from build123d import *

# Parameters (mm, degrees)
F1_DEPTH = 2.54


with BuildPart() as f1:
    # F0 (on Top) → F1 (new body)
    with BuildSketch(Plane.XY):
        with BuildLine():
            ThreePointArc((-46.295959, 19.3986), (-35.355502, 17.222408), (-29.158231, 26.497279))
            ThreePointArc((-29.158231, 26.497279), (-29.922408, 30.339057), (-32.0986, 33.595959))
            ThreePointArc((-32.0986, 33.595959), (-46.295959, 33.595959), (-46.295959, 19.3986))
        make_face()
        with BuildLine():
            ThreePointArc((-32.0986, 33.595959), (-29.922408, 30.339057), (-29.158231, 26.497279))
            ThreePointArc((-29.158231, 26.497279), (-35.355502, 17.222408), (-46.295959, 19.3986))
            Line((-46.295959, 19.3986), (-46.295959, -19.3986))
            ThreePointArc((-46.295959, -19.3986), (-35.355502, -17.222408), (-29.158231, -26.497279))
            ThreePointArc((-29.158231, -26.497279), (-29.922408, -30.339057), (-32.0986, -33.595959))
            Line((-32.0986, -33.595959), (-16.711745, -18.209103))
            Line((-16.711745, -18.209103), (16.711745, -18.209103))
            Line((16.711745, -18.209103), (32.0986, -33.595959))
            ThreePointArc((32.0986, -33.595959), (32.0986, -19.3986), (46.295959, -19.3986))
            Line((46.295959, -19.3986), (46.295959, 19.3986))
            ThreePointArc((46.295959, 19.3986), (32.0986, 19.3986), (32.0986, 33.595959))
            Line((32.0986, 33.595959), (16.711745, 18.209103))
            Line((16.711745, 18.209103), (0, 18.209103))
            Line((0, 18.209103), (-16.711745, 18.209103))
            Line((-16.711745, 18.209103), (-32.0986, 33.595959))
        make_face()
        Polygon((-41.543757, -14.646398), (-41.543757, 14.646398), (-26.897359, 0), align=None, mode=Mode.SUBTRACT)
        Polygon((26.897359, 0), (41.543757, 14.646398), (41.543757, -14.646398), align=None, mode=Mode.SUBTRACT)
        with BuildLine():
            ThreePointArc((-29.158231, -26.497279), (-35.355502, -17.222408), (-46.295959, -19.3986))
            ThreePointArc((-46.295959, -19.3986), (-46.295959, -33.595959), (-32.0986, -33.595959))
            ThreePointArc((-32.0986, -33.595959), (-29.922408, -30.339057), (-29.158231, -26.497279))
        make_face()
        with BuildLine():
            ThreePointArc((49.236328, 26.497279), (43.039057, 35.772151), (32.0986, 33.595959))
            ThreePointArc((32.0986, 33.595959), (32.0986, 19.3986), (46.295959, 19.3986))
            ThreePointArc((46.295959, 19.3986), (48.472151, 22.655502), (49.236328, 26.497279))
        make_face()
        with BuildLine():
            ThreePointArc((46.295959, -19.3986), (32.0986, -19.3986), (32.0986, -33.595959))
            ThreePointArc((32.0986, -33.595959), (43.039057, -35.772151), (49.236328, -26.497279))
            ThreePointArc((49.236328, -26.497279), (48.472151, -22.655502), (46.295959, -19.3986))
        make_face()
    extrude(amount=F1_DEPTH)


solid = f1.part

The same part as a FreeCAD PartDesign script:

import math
import FreeCAD as App
import Part
import Sketcher
Q = App.Units.Quantity


def add_polygon(sketch, points):
    """Adds a closed chain of lines whose ends are joined by coincident constraints."""
    first, n = sketch.GeometryCount, len(points)
    for a, b in zip(points, points[1:] + points[:1]):
        sketch.addGeometry(Part.LineSegment(App.Vector(*a, 0), App.Vector(*b, 0)), False)
    for i in range(n):
        sketch.addConstraint(Sketcher.Constraint("Coincident", first + i, 2, first + (i + 1) % n, 1))

doc = App.newDocument("Part")
body = doc.addObject("PartDesign::Body", "Body")

sketch1 = body.newObject("Sketcher::SketchObject", "Sketch")
sketch1.AttachmentSupport = (doc.getObject("XY_Plane"), [""])
sketch1.MapMode = "FlatFace"
sketch1.addGeometry(Part.ArcOfCircle(Part.Circle(App.Vector(-39.19728, 26.49728, 0), App.Vector(0, 0, 1), 10.039049), math.radians(45), math.radians(225)), False)
sketch1.addGeometry(Part.LineSegment(App.Vector(-46.295959, 19.3986, 0), App.Vector(-46.295959, -19.3986, 0)), False)
sketch1.addGeometry(Part.ArcOfCircle(Part.Circle(App.Vector(-39.19728, -26.49728, 0), App.Vector(0, 0, 1), 10.039049), math.radians(135), math.radians(315)), False)
sketch1.addGeometry(Part.LineSegment(App.Vector(-32.0986, -33.595959, 0), App.Vector(-16.711745, -18.209103, 0)), False)
sketch1.addGeometry(Part.LineSegment(App.Vector(-16.711745, -18.209103, 0), App.Vector(16.711745, -18.209103, 0)), False)
sketch1.addGeometry(Part.LineSegment(App.Vector(16.711745, -18.209103, 0), App.Vector(32.0986, -33.595959, 0)), False)
sketch1.addGeometry(Part.ArcOfCircle(Part.Circle(App.Vector(39.197279, -26.497279, 0), App.Vector(0, 0, 1), 10.039049), math.radians(-134.999999), math.radians(0.000002)), False)
sketch1.addGeometry(Part.ArcOfCircle(Part.Circle(App.Vector(39.197278, -26.49728, 0), App.Vector(0, 0, 1), 10.03905), math.radians(0.000004), math.radians(44.999994)), False)
sketch1.addGeometry(Part.LineSegment(App.Vector(46.295959, -19.3986, 0), App.Vector(46.295959, 19.3986, 0)), False)
sketch1.addGeometry(Part.ArcOfCircle(Part.Circle(App.Vector(39.197278, 26.49728, 0), App.Vector(0, 0, 1), 10.03905), math.radians(-44.999994), math.radians(-0.000004)), False)
sketch1.addGeometry(Part.ArcOfCircle(Part.Circle(App.Vector(39.197279, 26.497279, 0), App.Vector(0, 0, 1), 10.039049), math.radians(-0.000002), math.radians(134.999999)), False)
sketch1.addGeometry(Part.LineSegment(App.Vector(32.0986, 33.595959, 0), App.Vector(16.711745, 18.209103, 0)), False)
sketch1.addGeometry(Part.LineSegment(App.Vector(16.711745, 18.209103, 0), App.Vector(-16.711745, 18.209103, 0)), False)
sketch1.addGeometry(Part.LineSegment(App.Vector(-16.711745, 18.209103, 0), App.Vector(-32.0986, 33.595959, 0)), False)
add_polygon(sketch1, [(-26.897359, 0), (-41.543757, -14.646398), (-41.543757, 14.646398)])
add_polygon(sketch1, [(41.543757, -14.646398), (26.897359, 0), (41.543757, 14.646398)])
sketch1.addConstraint([
    Sketcher.Constraint("Coincident", 0, 2, 1, 1),
    Sketcher.Constraint("Coincident", 1, 2, 2, 1),
    Sketcher.Constraint("Tangent", 2, 2, 3, 1),
    Sketcher.Constraint("Coincident", 3, 2, 4, 1),
    Sketcher.Constraint("Coincident", 4, 2, 5, 1),
    Sketcher.Constraint("Tangent", 5, 2, 6, 1),
    Sketcher.Constraint("Tangent", 6, 2, 7, 1),
    Sketcher.Constraint("Coincident", 7, 2, 8, 1),
    Sketcher.Constraint("Coincident", 8, 2, 9, 1),
    Sketcher.Constraint("Tangent", 9, 2, 10, 1),
    Sketcher.Constraint("Tangent", 10, 2, 11, 1),
    Sketcher.Constraint("Coincident", 11, 2, 12, 1),
    Sketcher.Constraint("Coincident", 12, 2, 13, 1),
    Sketcher.Constraint("Tangent", 13, 2, 0, 1),
    Sketcher.Constraint("Vertical", 1),
    Sketcher.Constraint("Horizontal", 4),
    Sketcher.Constraint("Vertical", 8),
    Sketcher.Constraint("Horizontal", 12),
    Sketcher.Constraint("Vertical", 15),
    Sketcher.Constraint("Vertical", 19),
    Sketcher.Constraint("Equal", 0, 2),
    Sketcher.Constraint("Equal", 2, 6),
    Sketcher.Constraint("Equal", 6, 7),
    Sketcher.Constraint("Equal", 7, 9),
    Sketcher.Constraint("Equal", 9, 10),
    Sketcher.Constraint("Symmetric", 0, 3, 6, 3, -1, 1),
    Sketcher.Constraint("Symmetric", 2, 3, 9, 3, -1, 1),
    Sketcher.Constraint("Symmetric", 3, 2, 11, 2, -1, 1),
    Sketcher.Constraint("Symmetric", 16, 2, 17, 2, -1, 1),
    Sketcher.Constraint("Symmetric", 14, 2, 18, 2, -1, 1),
    Sketcher.Constraint("Symmetric", 2, 3, 6, 3, -2),
    Sketcher.Constraint("PointOnObject", 16, 2, -1),
    Sketcher.Constraint("Perpendicular", 3, 5),
    Sketcher.Constraint("Perpendicular", 11, 13),
    Sketcher.Constraint("Perpendicular", 13, 14),
    Sketcher.Constraint("Perpendicular", 14, 16),
    Sketcher.Constraint("Parallel", 16, 17),
    Sketcher.Constraint("Horizontal", 2, 2, 5, 2),
    Sketcher.Constraint("Horizontal", 7, 3, 6, 2),
    Sketcher.Constraint("Horizontal", 1, 2, 7, 2),
    Sketcher.Constraint("Horizontal", 10, 3, 9, 2),
    Sketcher.Constraint("Radius", 0, 10.039049),
    Sketcher.Constraint("DistanceY", 1, 2, 1, 1, 38.7972),
    Sketcher.Constraint("DistanceX", 0, 3, -1, 1, Q("1.5432 in")),
    Sketcher.Constraint("DistanceY", -1, 1, 0, 3, Q("1.0432 in")),
    Sketcher.Constraint("Distance", 3, 21.7603),
    Sketcher.Constraint("DistanceY", 1, 2, 14, 2, 4.752202),
    Sketcher.Constraint("DistanceX", 0, 2, 16, 2, 19.3986),
])
pad1 = body.newObject("PartDesign::Pad", "Pad")
pad1.Profile = sketch1
pad1.Length = Q("0.1 in")

doc.recompute()
